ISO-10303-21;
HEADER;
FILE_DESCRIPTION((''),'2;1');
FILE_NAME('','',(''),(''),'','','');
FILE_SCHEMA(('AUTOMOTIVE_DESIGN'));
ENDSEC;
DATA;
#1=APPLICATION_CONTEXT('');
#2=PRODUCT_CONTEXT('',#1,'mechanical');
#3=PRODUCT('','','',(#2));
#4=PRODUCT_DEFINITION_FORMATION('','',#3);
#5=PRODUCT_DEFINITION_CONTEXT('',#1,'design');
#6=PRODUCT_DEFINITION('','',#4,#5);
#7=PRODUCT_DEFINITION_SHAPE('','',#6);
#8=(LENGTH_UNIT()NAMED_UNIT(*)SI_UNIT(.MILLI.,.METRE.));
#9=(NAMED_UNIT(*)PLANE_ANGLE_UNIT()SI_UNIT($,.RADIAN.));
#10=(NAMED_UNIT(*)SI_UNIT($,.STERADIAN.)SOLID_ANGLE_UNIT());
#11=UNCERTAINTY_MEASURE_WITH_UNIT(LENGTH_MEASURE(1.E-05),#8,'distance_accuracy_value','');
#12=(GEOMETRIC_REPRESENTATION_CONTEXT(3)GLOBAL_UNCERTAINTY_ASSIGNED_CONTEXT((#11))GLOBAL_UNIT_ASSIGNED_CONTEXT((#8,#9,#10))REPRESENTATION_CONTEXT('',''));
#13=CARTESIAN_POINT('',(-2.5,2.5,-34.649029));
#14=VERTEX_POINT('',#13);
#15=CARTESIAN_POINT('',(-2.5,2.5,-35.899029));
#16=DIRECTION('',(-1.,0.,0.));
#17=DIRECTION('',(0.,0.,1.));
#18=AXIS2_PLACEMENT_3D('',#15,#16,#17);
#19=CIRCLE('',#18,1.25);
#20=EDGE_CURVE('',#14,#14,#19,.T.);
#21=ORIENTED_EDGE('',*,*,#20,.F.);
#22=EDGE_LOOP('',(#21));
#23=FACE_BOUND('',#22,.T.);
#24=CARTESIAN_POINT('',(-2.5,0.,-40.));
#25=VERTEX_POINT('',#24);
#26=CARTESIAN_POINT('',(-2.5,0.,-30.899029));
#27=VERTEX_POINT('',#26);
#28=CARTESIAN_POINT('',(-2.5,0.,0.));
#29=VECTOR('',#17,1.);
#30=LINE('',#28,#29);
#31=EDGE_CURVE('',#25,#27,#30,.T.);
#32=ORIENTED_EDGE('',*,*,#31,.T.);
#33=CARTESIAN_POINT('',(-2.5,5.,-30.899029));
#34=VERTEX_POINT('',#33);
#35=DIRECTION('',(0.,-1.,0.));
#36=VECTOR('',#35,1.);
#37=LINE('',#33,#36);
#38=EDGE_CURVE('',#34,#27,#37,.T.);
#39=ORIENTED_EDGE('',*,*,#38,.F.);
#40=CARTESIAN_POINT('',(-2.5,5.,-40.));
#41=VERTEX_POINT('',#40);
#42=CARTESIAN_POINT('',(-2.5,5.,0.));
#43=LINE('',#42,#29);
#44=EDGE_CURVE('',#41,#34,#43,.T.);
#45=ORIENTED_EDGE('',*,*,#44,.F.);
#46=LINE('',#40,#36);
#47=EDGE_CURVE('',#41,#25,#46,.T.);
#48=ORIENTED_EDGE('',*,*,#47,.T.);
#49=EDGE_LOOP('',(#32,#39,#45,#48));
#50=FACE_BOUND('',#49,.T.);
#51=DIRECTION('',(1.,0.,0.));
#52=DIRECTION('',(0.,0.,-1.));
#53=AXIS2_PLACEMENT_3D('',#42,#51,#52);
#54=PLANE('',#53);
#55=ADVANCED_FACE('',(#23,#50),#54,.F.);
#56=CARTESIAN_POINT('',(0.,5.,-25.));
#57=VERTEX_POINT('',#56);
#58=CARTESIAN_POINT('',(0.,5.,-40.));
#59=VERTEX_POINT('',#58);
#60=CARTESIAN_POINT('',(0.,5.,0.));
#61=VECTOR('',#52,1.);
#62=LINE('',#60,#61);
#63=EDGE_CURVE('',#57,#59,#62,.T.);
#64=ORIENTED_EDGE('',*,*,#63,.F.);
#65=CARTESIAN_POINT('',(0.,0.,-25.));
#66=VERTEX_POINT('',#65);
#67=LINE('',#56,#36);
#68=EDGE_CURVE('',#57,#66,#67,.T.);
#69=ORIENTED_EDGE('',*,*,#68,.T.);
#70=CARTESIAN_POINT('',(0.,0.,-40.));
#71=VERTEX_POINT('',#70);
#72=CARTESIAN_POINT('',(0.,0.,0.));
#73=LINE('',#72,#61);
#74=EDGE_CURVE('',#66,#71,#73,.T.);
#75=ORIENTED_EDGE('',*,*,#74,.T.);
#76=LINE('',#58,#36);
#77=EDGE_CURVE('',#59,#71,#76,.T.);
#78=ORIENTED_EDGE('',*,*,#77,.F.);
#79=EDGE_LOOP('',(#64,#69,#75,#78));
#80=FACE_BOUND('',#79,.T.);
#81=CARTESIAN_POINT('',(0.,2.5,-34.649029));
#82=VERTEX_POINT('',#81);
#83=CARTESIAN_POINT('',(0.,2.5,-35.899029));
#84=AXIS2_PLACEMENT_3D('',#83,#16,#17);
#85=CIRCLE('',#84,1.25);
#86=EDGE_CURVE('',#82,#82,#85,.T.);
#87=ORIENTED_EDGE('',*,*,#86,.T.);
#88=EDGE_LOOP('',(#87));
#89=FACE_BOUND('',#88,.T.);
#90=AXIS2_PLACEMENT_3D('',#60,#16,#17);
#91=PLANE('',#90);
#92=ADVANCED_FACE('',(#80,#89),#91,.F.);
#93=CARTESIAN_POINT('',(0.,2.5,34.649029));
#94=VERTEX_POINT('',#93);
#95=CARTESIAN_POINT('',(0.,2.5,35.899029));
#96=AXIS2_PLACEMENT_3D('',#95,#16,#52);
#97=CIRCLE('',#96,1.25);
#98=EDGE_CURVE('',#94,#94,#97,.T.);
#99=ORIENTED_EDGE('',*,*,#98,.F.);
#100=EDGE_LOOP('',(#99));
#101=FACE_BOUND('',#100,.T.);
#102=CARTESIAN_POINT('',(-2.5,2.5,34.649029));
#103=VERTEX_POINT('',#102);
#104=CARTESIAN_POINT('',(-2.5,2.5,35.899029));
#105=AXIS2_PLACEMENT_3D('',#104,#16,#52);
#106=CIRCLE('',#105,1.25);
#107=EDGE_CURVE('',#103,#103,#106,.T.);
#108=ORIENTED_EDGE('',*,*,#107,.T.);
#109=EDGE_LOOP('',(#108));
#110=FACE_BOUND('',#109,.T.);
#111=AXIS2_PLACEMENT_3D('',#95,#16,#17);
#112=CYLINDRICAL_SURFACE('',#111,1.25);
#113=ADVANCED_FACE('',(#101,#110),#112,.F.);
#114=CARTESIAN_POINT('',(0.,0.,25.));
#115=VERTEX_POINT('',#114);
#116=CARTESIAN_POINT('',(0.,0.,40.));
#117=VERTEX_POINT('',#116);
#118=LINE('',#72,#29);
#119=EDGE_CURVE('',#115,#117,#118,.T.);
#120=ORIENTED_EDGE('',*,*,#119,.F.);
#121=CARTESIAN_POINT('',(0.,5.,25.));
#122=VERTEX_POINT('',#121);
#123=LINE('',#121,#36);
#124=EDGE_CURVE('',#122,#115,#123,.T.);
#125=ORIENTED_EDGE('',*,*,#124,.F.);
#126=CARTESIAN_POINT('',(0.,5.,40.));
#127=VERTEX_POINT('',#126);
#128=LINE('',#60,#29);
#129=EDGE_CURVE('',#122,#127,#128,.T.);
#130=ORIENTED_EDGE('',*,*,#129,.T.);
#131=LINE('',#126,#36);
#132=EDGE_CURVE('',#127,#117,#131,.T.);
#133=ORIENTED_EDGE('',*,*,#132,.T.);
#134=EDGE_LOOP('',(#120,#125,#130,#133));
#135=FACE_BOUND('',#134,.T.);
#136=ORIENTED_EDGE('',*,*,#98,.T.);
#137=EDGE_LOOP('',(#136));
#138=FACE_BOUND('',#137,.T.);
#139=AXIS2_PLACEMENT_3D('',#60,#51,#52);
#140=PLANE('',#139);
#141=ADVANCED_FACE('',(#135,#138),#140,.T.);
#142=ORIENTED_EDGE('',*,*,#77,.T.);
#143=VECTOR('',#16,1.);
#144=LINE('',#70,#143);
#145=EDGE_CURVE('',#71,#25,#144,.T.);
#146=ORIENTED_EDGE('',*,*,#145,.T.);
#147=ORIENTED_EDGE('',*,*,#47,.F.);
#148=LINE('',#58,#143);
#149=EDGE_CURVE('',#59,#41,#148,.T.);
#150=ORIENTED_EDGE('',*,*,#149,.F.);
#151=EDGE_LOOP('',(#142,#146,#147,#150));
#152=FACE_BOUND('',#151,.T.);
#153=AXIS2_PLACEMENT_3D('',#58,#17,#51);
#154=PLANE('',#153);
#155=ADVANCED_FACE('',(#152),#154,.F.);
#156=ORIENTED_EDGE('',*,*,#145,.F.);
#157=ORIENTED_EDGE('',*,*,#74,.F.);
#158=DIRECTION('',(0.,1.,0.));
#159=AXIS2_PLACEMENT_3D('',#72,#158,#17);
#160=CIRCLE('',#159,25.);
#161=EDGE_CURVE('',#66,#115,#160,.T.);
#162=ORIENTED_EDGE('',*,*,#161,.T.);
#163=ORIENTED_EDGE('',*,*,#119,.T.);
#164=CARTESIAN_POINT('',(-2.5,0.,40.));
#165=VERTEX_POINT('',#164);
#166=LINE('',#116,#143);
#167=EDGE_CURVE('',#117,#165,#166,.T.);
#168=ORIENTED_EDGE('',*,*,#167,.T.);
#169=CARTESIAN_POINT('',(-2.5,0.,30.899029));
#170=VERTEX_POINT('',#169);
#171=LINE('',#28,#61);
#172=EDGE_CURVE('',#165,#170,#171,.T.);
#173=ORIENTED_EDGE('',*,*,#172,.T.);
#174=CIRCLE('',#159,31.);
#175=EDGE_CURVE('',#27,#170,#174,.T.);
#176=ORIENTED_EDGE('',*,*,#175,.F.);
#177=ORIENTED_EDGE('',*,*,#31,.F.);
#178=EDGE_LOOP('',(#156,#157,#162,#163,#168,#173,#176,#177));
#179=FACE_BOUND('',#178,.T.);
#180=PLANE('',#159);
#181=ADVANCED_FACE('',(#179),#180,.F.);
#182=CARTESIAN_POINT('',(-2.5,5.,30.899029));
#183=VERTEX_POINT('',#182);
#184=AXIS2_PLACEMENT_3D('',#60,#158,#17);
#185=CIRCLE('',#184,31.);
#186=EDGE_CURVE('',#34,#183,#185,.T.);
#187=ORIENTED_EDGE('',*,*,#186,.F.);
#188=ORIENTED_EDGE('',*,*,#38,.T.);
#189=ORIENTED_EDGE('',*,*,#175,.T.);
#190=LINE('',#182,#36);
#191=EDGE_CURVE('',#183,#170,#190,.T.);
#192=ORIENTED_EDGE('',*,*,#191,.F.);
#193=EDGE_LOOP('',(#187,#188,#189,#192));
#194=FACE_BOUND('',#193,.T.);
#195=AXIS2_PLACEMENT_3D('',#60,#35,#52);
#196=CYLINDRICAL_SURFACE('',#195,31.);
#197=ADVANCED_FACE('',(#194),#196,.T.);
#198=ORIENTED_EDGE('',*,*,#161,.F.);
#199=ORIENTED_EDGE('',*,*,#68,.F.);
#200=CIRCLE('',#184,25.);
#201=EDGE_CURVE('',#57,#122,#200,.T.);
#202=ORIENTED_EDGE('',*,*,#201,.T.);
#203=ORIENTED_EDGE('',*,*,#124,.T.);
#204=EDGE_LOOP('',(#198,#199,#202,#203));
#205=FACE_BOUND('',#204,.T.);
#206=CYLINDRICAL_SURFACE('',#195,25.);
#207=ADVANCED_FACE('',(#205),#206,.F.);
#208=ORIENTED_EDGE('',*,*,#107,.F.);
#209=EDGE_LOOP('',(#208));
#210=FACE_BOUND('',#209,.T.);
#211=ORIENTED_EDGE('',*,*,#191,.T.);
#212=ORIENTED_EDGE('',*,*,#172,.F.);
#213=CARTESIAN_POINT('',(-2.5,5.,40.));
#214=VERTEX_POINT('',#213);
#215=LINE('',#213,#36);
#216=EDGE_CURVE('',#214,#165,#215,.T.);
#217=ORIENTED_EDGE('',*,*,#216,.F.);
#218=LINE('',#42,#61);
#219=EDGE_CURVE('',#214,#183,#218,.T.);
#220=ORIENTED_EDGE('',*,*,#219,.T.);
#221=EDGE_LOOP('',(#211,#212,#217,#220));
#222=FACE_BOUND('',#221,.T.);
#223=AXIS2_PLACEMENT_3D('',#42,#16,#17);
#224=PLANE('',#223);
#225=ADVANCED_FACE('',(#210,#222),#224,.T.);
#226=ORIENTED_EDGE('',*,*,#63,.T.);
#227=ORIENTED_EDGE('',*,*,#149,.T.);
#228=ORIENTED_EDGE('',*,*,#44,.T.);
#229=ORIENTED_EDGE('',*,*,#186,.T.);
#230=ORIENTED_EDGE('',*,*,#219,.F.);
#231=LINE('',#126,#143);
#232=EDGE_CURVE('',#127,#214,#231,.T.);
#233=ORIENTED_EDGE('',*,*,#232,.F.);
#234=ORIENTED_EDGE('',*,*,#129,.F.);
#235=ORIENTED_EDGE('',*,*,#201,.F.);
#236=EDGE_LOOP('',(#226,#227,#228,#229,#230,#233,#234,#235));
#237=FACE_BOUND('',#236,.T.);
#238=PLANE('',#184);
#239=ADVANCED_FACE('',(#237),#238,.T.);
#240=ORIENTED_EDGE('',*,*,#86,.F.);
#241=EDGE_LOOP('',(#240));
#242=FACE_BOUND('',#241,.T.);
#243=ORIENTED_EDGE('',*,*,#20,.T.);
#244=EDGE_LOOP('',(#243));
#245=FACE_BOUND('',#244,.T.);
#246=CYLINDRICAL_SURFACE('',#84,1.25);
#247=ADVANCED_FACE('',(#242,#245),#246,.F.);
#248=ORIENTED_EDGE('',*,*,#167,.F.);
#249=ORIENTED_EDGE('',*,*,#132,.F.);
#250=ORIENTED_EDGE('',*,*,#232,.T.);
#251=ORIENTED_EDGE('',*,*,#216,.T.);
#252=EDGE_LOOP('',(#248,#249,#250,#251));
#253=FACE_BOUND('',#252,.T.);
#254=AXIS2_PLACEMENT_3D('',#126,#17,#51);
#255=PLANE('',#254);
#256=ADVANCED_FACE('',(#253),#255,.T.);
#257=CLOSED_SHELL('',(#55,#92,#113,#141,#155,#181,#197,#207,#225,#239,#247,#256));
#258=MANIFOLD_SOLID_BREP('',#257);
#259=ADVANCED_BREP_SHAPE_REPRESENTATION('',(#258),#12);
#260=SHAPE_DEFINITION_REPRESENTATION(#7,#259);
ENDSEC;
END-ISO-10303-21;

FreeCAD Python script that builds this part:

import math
import FreeCAD as App
import Part
import Sketcher
from FreeCAD import Vector

doc = App.newDocument("Part")
params = doc.addObject("Spreadsheet::Sheet", "Params")
for row, (alias, value) in enumerate([
    ("sketch1_radius", "25 mm"),
    ("sketch1_radius2", "31 mm"),
    ("sketch1_height", "15 mm"),
    ("sketch1_width", "2.5 mm"),
    ("pad1_length", "5 mm"),
    ("sketch2_diameter", "2.5 mm"),
], start=1):
    params.set(f"A{row}", alias)
    params.set(f"B{row}", "=" + value)
    params.setAlias(f"B{row}", alias)

body = doc.addObject("PartDesign::Body", "Body")

sketch1 = body.newObject("Sketcher::SketchObject", "Sketch")
sketch1.AttachmentSupport = (doc.getObject("XZ_Plane"), [""])
sketch1.MapMode = "FlatFace"
sketch1.addGeometry([
    Part.ArcOfCircle(Part.Circle(Vector(0, 0, 0), Vector(0, 0, 1), 25), math.radians(96), math.radians(264)),
    Part.ArcOfCircle(Part.Circle(Vector(0, 0, 0), Vector(0, 0, 1), 25), math.radians(-95.74), math.radians(-90)),
    Part.LineSegment(Vector(0, -25, 0), Vector(0, -40, 0)),
    Part.LineSegment(Vector(0, -40, 0), Vector(-2.5, -40, 0)),
    Part.LineSegment(Vector(-2.5, -40, 0), Vector(-2.5, -30.9, 0)),
    Part.ArcOfCircle(Part.Circle(Vector(0, 0, 0), Vector(0, 0, 1), 31), math.radians(95), math.radians(265)),
    Part.LineSegment(Vector(-2.5, 30.9, 0), Vector(-2.5, 40, 0)),
    Part.LineSegment(Vector(-2.5, 40, 0), Vector(0, 40, 0)),
    Part.LineSegment(Vector(0, 40, 0), Vector(0, 25, 0)),
    Part.ArcOfCircle(Part.Circle(Vector(0, 0, 0), Vector(0, 0, 1), 25), math.radians(90), math.radians(95.74)),
], False)
sketch1.addConstraint([
    Sketcher.Constraint("Tangent", 0, 2, 1, 1),
    Sketcher.Constraint("Coincident", 1, 2, 2, 1),
    Sketcher.Constraint("Coincident", 2, 2, 3, 1),
    Sketcher.Constraint("Coincident", 3, 2, 4, 1),
    Sketcher.Constraint("Coincident", 4, 2, 5, 2),
    Sketcher.Constraint("Coincident", 5, 1, 6, 1),
    Sketcher.Constraint("Coincident", 6, 2, 7, 1),
    Sketcher.Constraint("Coincident", 7, 2, 8, 1),
    Sketcher.Constraint("Coincident", 8, 2, 9, 1),
    Sketcher.Constraint("Tangent", 9, 2, 0, 1),
    Sketcher.Constraint("Vertical", 2),
    Sketcher.Constraint("Horizontal", 3),
    Sketcher.Constraint("Vertical", 4),
    Sketcher.Constraint("Vertical", 6),
    Sketcher.Constraint("Horizontal", 7),
    Sketcher.Constraint("Vertical", 8),
    Sketcher.Constraint("Coincident", 0, 3, -1, 1),
    Sketcher.Constraint("Coincident", 5, 3, -1, 1),
    Sketcher.Constraint("Equal", 0, 1),
    Sketcher.Constraint("Equal", 1, 9),
    Sketcher.Constraint("Symmetric", 2, 2, 7, 2, -1, 1),
    Sketcher.Constraint("PointOnObject", 1, 2, -2),
    Sketcher.Constraint("Vertical", 0, 2, 3, 2),
    Sketcher.Constraint("Vertical", 4, 2, 5, 1),
    Sketcher.Constraint("Vertical", 6, 2, 9, 2),
    Sketcher.Constraint("Radius", 0, 25.0),
    Sketcher.Constraint("Radius", 5, 31.0),
    Sketcher.Constraint("DistanceY", 2, 2, 2, 1, 15.0),
    Sketcher.Constraint("DistanceX", 3, 2, 3, 1, 2.5),
])
sketch1.setExpression("Constraints[25]", "Params.sketch1_radius")
sketch1.setExpression("Constraints[26]", "Params.sketch1_radius2")
sketch1.setExpression("Constraints[27]", "Params.sketch1_height")
sketch1.setExpression("Constraints[28]", "Params.sketch1_width")
pad1 = body.newObject("PartDesign::Pad", "Pad")
pad1.Profile = sketch1
pad1.setExpression("Length", "Params.pad1_length")
pad1.Reversed = True

sketch2 = body.newObject("Sketcher::SketchObject", "Sketch001")
sketch2.AttachmentSupport = (doc.getObject("YZ_Plane"), [""])
sketch2.MapMode = "FlatFace"
sketch2.AttachmentOffset = App.Placement(Vector(0, 0, -2.5), App.Rotation())
sketch2.addGeometry([
    Part.Circle(Vector(2.5, -35.9, 0), Vector(0, 0, 1), 1.2),
    Part.Circle(Vector(2.5, 35.9, 0), Vector(0, 0, 1), 1.2),
], False)
sketch2.addConstraint([
    Sketcher.Constraint("Equal", 0, 1),
    Sketcher.Constraint("Symmetric", 0, 3, 1, 3, -1),
    Sketcher.Constraint("Diameter", 0, 2.5),
    Sketcher.Constraint("DistanceX", -1, 1, 0, 3, 2.5),
    Sketcher.Constraint("DistanceY", 0, 3, -1, 1, 35.899029),
])
sketch2.setExpression("Constraints[2]", "Params.sketch2_diameter")
pocket1 = body.newObject("PartDesign::Pocket", "Pocket")
pocket1.Profile = sketch2
pocket1.Type = "ThroughAll"
pocket1.Reversed = True

doc.recompute()
